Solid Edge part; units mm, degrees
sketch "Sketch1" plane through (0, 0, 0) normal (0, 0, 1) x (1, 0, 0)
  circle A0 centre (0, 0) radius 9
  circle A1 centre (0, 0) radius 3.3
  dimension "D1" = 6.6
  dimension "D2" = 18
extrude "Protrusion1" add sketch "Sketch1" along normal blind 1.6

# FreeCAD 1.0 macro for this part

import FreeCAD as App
import Part
import Sketcher
from FreeCAD import Vector

doc = App.newDocument("Part")
body = doc.addObject("PartDesign::Body", "Body")

# Sketch on XY plane
sketch1 = doc.addObject("Sketcher::SketchObject", "Sketch")
body.addObject(sketch1)
sketch1.AttachmentSupport = (doc.XY_Plane, [""])
sketch1.MapMode = "FlatFace"
sketch1.addGeometry([
    Part.Circle(Vector(0, 0, 0), Vector(0, 0, 1), 9),
    Part.Circle(Vector(0, 0, 0), Vector(0, 0, 1), 3.3),
], False)
sketch1.addConstraint([
    Sketcher.Constraint("Coincident", 0, 3, -1, 1),
    Sketcher.Constraint("Coincident", 1, 3, -1, 1),
    Sketcher.Constraint("Diameter", 0, 18.0),
    Sketcher.Constraint("Diameter", 1, 6.6),
])
pad1 = doc.addObject("PartDesign::Pad", "Pad")
body.addObject(pad1)
pad1.Profile = sketch1
pad1.Length = 1.6

doc.recompute()
